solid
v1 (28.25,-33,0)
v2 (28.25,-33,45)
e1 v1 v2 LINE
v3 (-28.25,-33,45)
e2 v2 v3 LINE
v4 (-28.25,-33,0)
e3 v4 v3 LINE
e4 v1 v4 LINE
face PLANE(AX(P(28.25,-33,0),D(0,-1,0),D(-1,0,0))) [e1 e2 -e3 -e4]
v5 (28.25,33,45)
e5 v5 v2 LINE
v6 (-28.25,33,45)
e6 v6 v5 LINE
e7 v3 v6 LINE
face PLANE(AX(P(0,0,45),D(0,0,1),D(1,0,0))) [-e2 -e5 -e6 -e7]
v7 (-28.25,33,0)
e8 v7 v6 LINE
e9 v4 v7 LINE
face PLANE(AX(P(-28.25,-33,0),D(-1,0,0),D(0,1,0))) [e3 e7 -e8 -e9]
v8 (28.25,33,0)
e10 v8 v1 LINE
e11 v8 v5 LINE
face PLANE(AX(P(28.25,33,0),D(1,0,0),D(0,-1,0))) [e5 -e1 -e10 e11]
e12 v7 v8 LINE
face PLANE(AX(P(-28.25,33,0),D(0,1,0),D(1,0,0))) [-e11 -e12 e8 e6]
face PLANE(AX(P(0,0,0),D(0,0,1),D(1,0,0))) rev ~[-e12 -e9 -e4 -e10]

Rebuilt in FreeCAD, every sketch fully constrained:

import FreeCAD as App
import Part
import Sketcher
Q = App.Units.Quantity

doc = App.newDocument("Part")
params = doc.addObject("Spreadsheet::Sheet", "Params")
for row, (alias, value) in enumerate([
    ("sketch1_height", "66 mm"),
    ("sketch1_width", "56.5 mm"),
    ("pad1_length", "45 mm"),
], start=1):
    params.set(f"A{row}", alias)
    params.set(f"B{row}", "=" + value)
    params.setAlias(f"B{row}", alias)

body = doc.addObject("PartDesign::Body", "Body")

# Sketch on XY plane
sketch1 = doc.addObject("Sketcher::SketchObject", "Sketch")
body.addObject(sketch1)
sketch1.AttachmentSupport = (doc.XY_Plane, [""])
sketch1.MapMode = "FlatFace"
sketch1.addGeometry([
    Part.LineSegment(App.Vector(-28.25, -33, 0), App.Vector(28.25, -33, 0)),
    Part.LineSegment(App.Vector(28.25, -33, 0), App.Vector(28.25, 33, 0)),
    Part.LineSegment(App.Vector(28.25, 33, 0), App.Vector(-28.25, 33, 0)),
    Part.LineSegment(App.Vector(-28.25, 33, 0), App.Vector(-28.25, -33, 0)),
], False)
sketch1.addConstraint([
    Sketcher.Constraint("Coincident", 0, 2, 1, 1),
    Sketcher.Constraint("Coincident", 1, 2, 2, 1),
    Sketcher.Constraint("Coincident", 2, 2, 3, 1),
    Sketcher.Constraint("Coincident", 3, 2, 0, 1),
    Sketcher.Constraint("Horizontal", 0),
    Sketcher.Constraint("Vertical", 1),
    Sketcher.Constraint("Horizontal", 2),
    Sketcher.Constraint("Vertical", 3),
    Sketcher.Constraint("Symmetric", 0, 2, 2, 2, -1, 1),
    Sketcher.Constraint("DistanceY", 1, 1, 1, 2, Q("66 mm")),
    Sketcher.Constraint("DistanceX", 0, 1, 0, 2, Q("56.5 mm")),
])
sketch1.setExpression("Constraints[9]", "Params.sketch1_height")
sketch1.setExpression("Constraints[10]", "Params.sketch1_width")
pad1 = doc.addObject("PartDesign::Pad", "Pad")
body.addObject(pad1)
pad1.Profile = sketch1
pad1.setExpression("Length", "Params.pad1_length")

doc.recompute()
